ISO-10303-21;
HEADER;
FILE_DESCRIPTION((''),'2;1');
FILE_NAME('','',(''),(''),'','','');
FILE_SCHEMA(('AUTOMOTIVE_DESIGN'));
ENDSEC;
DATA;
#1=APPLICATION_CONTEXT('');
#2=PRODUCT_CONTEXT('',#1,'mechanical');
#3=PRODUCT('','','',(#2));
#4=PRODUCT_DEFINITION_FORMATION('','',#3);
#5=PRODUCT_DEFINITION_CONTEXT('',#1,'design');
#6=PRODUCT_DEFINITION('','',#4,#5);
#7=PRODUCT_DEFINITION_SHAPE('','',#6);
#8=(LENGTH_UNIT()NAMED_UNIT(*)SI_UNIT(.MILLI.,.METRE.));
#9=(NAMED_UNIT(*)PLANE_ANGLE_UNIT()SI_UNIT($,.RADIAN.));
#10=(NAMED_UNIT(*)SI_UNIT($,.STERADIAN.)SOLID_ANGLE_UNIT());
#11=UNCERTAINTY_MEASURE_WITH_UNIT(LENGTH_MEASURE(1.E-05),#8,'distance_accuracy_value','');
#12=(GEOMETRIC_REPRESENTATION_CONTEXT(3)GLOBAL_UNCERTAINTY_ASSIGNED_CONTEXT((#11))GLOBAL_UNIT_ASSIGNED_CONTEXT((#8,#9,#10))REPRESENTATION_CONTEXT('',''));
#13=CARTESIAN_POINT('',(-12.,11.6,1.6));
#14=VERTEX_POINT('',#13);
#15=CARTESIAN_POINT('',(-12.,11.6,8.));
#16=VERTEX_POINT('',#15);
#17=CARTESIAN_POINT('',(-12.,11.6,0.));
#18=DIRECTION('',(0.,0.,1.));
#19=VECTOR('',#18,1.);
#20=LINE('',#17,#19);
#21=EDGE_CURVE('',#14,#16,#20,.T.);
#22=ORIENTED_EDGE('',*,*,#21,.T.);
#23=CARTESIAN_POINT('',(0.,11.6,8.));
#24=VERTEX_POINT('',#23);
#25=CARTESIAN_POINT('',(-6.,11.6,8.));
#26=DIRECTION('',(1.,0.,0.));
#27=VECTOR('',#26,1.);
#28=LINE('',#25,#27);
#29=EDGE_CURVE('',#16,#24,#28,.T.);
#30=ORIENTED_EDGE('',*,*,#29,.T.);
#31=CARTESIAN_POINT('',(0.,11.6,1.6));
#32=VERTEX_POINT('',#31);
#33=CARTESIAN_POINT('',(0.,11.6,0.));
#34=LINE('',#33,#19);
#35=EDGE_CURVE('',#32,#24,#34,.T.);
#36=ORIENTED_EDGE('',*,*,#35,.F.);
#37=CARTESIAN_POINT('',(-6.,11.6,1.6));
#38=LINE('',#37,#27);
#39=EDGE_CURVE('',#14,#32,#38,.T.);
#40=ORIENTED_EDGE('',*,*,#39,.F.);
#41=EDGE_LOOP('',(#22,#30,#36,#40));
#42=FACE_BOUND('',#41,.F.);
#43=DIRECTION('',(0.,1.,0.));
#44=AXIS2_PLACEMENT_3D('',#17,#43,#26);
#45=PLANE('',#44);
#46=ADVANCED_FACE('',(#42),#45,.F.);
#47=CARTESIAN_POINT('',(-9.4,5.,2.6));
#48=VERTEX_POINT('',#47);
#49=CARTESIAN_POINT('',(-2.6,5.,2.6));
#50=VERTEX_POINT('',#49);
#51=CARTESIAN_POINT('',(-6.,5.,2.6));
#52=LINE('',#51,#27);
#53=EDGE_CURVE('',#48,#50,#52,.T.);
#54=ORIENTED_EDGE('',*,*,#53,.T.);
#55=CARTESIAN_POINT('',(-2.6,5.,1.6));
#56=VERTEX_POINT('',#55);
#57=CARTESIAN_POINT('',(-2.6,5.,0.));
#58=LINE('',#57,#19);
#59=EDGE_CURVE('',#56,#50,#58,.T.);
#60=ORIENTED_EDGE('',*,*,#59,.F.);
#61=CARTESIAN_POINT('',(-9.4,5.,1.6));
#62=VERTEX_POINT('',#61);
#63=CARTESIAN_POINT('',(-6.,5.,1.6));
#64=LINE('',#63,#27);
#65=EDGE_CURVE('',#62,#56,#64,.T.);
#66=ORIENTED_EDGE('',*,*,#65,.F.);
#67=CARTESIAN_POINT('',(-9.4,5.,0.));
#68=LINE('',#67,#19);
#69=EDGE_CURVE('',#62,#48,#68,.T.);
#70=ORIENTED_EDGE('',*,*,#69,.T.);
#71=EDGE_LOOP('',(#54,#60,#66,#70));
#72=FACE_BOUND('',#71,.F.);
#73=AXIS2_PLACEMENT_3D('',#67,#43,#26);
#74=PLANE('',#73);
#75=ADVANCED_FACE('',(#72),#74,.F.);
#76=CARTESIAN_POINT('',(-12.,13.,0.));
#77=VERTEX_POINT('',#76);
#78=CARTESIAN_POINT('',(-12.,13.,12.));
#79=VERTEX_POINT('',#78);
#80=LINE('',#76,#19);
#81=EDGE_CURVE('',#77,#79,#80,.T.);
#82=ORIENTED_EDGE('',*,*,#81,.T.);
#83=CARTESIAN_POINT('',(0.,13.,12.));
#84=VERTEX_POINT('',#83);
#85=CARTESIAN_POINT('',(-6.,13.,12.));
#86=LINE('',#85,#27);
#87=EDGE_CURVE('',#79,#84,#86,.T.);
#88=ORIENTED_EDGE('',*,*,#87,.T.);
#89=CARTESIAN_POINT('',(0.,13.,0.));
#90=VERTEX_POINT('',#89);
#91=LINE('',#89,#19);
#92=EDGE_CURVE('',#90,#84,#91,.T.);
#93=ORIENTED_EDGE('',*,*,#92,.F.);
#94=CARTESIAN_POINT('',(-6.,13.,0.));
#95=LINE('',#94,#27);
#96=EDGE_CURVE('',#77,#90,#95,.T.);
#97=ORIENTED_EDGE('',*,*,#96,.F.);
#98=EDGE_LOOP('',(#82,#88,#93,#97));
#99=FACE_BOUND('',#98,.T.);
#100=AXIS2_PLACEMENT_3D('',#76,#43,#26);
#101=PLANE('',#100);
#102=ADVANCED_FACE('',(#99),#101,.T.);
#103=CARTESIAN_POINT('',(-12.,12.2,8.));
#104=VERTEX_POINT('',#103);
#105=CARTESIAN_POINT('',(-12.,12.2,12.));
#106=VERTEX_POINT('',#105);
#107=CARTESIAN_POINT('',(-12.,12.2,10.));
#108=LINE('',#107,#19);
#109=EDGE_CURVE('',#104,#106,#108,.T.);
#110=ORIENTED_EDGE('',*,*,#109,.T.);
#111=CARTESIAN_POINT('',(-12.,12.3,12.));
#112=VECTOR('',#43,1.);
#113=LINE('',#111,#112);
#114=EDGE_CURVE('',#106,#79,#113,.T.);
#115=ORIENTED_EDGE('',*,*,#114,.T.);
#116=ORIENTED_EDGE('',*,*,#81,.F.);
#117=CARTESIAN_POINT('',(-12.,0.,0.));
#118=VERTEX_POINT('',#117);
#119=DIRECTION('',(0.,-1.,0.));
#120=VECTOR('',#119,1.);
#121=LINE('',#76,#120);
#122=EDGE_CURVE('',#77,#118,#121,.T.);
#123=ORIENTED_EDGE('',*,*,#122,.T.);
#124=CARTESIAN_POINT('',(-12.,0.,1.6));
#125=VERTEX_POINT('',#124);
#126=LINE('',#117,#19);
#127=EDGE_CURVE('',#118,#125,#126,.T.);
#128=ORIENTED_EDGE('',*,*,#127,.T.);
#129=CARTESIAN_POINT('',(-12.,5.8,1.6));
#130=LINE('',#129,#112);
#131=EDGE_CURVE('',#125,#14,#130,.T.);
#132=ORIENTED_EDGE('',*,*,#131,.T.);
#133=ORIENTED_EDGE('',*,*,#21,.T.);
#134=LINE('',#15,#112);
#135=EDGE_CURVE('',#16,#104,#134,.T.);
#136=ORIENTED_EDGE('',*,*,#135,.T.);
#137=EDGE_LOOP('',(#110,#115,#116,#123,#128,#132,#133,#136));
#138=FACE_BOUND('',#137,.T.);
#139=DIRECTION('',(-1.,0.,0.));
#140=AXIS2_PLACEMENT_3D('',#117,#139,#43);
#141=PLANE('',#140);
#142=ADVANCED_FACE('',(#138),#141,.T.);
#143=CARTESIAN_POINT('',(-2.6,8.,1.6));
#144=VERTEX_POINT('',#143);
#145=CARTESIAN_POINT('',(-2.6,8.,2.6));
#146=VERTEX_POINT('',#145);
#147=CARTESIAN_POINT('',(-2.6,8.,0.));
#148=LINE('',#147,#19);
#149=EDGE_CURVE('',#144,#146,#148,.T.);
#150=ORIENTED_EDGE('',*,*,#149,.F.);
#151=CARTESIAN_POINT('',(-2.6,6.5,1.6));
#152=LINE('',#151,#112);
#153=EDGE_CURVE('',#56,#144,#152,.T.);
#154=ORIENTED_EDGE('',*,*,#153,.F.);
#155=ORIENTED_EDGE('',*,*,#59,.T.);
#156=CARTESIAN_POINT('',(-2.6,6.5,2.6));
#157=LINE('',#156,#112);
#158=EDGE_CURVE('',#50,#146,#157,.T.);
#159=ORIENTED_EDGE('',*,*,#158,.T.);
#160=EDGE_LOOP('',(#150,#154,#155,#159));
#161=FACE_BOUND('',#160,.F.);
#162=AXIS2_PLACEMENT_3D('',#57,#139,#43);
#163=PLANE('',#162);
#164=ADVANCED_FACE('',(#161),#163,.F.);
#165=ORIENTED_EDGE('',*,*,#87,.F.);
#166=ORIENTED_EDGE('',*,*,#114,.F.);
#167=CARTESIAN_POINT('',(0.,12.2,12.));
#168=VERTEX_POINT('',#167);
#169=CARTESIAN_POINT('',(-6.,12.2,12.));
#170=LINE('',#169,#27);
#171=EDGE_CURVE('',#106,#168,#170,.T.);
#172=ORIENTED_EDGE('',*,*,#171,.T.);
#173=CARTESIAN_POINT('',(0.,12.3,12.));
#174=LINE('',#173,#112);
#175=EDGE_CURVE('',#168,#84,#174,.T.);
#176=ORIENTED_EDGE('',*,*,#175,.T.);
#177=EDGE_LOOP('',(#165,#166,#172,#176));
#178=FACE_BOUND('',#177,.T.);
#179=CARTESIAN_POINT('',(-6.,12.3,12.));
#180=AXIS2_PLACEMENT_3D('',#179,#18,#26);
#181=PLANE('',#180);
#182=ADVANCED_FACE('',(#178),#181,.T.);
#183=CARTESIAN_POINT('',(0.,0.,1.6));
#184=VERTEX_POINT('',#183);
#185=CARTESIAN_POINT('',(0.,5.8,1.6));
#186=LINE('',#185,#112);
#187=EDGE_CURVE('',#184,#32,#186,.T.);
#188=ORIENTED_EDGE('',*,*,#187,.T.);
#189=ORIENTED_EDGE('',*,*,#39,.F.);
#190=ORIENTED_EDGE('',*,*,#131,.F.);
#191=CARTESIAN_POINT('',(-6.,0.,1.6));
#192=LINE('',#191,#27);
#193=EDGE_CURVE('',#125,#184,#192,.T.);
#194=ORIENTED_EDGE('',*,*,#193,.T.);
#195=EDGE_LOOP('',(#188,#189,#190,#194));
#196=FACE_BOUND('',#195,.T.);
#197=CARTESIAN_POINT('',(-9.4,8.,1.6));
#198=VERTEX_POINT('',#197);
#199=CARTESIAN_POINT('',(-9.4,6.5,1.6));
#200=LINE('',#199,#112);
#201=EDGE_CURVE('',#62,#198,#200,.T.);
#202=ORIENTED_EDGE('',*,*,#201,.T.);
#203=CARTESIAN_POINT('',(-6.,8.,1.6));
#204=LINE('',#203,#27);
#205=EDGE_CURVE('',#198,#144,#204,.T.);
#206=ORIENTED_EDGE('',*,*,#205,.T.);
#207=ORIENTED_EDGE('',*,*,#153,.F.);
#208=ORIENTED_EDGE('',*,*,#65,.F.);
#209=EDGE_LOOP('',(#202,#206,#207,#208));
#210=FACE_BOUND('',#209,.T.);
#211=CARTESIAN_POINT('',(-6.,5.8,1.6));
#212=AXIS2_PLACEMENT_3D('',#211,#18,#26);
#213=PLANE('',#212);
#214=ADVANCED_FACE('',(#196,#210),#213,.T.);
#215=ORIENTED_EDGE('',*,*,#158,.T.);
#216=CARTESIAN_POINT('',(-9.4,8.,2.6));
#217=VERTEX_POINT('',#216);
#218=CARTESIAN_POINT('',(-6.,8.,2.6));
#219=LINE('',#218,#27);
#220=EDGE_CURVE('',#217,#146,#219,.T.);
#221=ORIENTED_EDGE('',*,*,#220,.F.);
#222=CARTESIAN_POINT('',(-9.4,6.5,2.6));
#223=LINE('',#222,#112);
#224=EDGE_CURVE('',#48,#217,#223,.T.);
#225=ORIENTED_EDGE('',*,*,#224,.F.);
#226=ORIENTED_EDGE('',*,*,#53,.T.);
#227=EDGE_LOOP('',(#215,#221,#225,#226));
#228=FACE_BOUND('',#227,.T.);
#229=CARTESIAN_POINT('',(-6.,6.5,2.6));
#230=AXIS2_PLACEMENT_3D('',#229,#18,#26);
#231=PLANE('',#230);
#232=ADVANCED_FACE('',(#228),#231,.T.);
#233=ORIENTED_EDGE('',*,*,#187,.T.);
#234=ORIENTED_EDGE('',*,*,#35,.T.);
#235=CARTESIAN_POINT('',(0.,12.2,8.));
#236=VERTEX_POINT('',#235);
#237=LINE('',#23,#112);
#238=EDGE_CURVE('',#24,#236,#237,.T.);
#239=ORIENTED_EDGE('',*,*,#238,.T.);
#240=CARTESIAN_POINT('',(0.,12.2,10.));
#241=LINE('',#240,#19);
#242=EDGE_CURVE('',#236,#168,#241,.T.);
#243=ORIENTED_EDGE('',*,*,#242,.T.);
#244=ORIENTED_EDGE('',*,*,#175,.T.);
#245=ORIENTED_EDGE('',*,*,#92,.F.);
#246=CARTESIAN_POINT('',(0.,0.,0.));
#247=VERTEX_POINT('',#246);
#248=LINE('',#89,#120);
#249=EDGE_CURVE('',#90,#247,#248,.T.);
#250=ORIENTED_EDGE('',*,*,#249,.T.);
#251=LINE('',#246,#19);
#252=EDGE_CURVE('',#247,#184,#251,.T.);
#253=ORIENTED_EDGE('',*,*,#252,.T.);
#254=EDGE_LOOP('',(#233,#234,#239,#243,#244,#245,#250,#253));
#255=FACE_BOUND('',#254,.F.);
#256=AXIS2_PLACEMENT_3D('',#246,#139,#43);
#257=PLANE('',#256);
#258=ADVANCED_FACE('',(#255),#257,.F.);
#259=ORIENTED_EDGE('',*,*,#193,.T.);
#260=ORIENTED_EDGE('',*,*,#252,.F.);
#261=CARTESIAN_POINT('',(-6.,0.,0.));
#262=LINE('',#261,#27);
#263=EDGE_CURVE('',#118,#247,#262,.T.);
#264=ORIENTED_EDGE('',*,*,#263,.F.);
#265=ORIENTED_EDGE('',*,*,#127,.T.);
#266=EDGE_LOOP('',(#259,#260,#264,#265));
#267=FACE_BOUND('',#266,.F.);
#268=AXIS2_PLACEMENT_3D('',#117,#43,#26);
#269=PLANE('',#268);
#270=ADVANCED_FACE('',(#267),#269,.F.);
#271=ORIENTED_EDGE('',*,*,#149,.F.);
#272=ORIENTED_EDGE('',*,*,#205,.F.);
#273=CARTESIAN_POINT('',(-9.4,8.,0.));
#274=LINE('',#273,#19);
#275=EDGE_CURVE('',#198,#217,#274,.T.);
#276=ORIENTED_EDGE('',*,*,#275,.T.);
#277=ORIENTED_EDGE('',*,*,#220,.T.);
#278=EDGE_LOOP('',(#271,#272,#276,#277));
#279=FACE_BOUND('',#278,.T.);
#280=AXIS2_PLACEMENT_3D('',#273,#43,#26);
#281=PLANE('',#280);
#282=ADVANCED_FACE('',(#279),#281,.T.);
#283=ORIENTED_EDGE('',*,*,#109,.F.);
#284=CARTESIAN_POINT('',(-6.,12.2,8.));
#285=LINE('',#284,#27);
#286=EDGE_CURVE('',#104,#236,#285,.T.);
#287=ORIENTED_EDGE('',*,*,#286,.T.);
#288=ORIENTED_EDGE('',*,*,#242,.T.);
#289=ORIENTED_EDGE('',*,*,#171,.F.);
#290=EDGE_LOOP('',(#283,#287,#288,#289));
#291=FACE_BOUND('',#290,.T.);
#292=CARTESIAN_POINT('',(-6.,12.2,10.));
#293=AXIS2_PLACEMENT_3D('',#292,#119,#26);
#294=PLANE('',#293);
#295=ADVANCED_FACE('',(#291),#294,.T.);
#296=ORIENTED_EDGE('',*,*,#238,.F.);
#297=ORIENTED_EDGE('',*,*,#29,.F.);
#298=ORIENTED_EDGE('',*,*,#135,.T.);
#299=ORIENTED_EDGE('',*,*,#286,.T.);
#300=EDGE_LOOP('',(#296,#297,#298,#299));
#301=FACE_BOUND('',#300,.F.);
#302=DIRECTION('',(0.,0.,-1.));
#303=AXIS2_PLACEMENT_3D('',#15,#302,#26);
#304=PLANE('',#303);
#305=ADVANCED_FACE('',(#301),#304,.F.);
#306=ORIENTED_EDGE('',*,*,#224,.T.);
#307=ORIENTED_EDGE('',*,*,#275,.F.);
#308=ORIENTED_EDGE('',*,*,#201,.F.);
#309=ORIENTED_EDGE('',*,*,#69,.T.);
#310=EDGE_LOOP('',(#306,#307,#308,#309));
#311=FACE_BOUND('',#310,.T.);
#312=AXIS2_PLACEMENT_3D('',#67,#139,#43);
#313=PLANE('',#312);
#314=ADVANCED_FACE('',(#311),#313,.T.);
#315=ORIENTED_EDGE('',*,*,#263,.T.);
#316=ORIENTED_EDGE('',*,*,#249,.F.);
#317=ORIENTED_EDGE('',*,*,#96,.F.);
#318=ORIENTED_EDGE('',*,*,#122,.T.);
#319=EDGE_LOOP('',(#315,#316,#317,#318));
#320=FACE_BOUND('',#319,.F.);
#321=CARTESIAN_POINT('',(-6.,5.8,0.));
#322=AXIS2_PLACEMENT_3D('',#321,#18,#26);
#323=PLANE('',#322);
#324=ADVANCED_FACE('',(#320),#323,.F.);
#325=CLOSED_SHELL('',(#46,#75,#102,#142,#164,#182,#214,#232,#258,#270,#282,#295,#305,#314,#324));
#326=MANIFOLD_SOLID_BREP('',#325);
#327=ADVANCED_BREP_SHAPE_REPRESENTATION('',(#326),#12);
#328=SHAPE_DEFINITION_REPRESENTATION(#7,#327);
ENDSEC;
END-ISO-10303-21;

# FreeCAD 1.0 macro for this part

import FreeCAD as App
import Part
import Sketcher
from FreeCAD import Vector
Q = App.Units.Quantity


def add_polygon(sketch, points):
    """Adds a closed chain of lines whose ends are joined by coincident constraints."""
    first, n = sketch.GeometryCount, len(points)
    for a, b in zip(points, points[1:] + points[:1]):
        sketch.addGeometry(Part.LineSegment(App.Vector(*a, 0), App.Vector(*b, 0)), False)
    for i in range(n):
        sketch.addConstraint(Sketcher.Constraint("Coincident", first + i, 2, first + (i + 1) % n, 1))

doc = App.newDocument("Part")
body = doc.addObject("PartDesign::Body", "Body")

sketch1 = body.newObject("Sketcher::SketchObject", "Sketch")
sketch1.AttachmentSupport = (doc.getObject("XY_Plane"), [""])
sketch1.MapMode = "FlatFace"
add_polygon(sketch1, [(-12, 13), (-12, 11.6), (0, 11.6), (0, 13)])
sketch1.addConstraint([
    Sketcher.Constraint("Vertical", 0),
    Sketcher.Constraint("Horizontal", 1),
    Sketcher.Constraint("Vertical", 2),
    Sketcher.Constraint("Horizontal", 3),
    Sketcher.Constraint("PointOnObject", 1, 2, -2),
    Sketcher.Constraint("DistanceX", 1, 1, 1, 2, Q("12 mm")),
    Sketcher.Constraint("DistanceY", 0, 2, 0, 1, Q("1.4 mm")),
    Sketcher.Constraint("DistanceY", -1, 1, 2, 2, Q("13 mm")),
])
pad1 = body.newObject("PartDesign::Pad", "Pad")
pad1.Profile = sketch1
pad1.Length = 12

sketch2 = body.newObject("Sketcher::SketchObject", "Sketch001")
sketch2.AttachmentSupport = (doc.getObject("XY_Plane"), [""])
sketch2.MapMode = "FlatFace"
add_polygon(sketch2, [(-12, 11.6), (-12, 0), (0, 0), (0, 11.6)])
add_polygon(sketch2, [(-2.6, 5), (-9.4, 5), (-9.4, 8), (-2.6, 8)])
sketch2.addConstraint([
    Sketcher.Constraint("Vertical", 0),
    Sketcher.Constraint("Horizontal", 1),
    Sketcher.Constraint("Vertical", 2),
    Sketcher.Constraint("Horizontal", 3),
    Sketcher.Constraint("Horizontal", 4),
    Sketcher.Constraint("Vertical", 5),
    Sketcher.Constraint("Horizontal", 6),
    Sketcher.Constraint("Vertical", 7),
    Sketcher.Constraint("Coincident", 1, 2, -1, 1),
    Sketcher.Constraint("DistanceX", 1, 1, 1, 2, Q("12 mm")),
    Sketcher.Constraint("DistanceY", 5, 1, 5, 2, Q("3 mm")),
    Sketcher.Constraint("DistanceX", 4, 2, 4, 1, Q("6.8 mm")),
    Sketcher.Constraint("DistanceY", 0, 2, 0, 1, Q("11.6 mm")),
    Sketcher.Constraint("DistanceY", -1, 1, 4, 2, Q("5 mm")),
    Sketcher.Constraint("DistanceX", 4, 2, -1, 1, Q("9.4 mm")),
])
pad2 = body.newObject("PartDesign::Pad", "Pad001")
pad2.Profile = sketch2
pad2.Length = 1.6

sketch3 = body.newObject("Sketcher::SketchObject", "Sketch002")
sketch3.AttachmentSupport = (doc.getObject("XY_Plane"), [""])
sketch3.MapMode = "FlatFace"
add_polygon(sketch3, [(-9.4, 8), (-9.4, 5), (-2.6, 5), (-2.6, 8)])
sketch3.addConstraint([
    Sketcher.Constraint("Vertical", 0),
    Sketcher.Constraint("Horizontal", 1),
    Sketcher.Constraint("Vertical", 2),
    Sketcher.Constraint("Horizontal", 3),
    Sketcher.Constraint("DistanceY", 0, 2, 0, 1, Q("3 mm")),
    Sketcher.Constraint("DistanceX", 1, 1, 1, 2, Q("6.8 mm")),
    Sketcher.Constraint("DistanceY", -1, 1, 0, 2, Q("5 mm")),
    Sketcher.Constraint("DistanceX", 0, 2, -1, 1, Q("9.4 mm")),
])
pad3 = body.newObject("PartDesign::Pad", "Pad002")
pad3.Profile = sketch3
pad3.Length = 2.6

sketch4 = body.newObject("Sketcher::SketchObject", "Sketch003")
sketch4.AttachmentSupport = (doc.getObject("XZ_Plane"), [""])
sketch4.MapMode = "FlatFace"
sketch4.AttachmentOffset = App.Placement(Vector(0, 0, -11.6), App.Rotation())
add_polygon(sketch4, [(-12, 12), (-12, 8), (0, 8), (0, 12)])
sketch4.addConstraint([
    Sketcher.Constraint("Vertical", 0),
    Sketcher.Constraint("Horizontal", 1),
    Sketcher.Constraint("Vertical", 2),
    Sketcher.Constraint("Horizontal", 3),
    Sketcher.Constraint("PointOnObject", 1, 2, -2),
    Sketcher.Constraint("DistanceX", 1, 1, 1, 2, Q("12 mm")),
    Sketcher.Constraint("DistanceY", 0, 2, 0, 1, Q("4 mm")),
    Sketcher.Constraint("DistanceY", -1, 1, 0, 2, Q("8 mm")),
])
pocket1 = body.newObject("PartDesign::Pocket", "Pocket")
pocket1.Profile = sketch4
pocket1.Length = 0.6

doc.recompute()
